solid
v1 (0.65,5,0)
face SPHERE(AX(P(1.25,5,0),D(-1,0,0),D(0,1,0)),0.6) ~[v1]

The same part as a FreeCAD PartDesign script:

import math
import FreeCAD as App
import Part
import Sketcher
from FreeCAD import Vector

doc = App.newDocument("Part")
body = doc.addObject("PartDesign::Body", "Body")

sketch1 = body.newObject("Sketcher::SketchObject", "Sketch")
sketch1.AttachmentSupport = (doc.getObject("XY_Plane"), [""])
sketch1.MapMode = "FlatFace"
sketch1.addGeometry([
    Part.LineSegment(Vector(0.7, 5, 0), Vector(1.9, 5, 0)),
    Part.ArcOfCircle(Part.Circle(Vector(1.2, 5, 0), Vector(0, 0, 1), 0.6), math.radians(0), math.radians(180)),
], False)
sketch1.addGeometry(Part.LineSegment(Vector(0.7, 5, 0), Vector(1.9, 5, 0)), True)
sketch1.addConstraint([
    Sketcher.Constraint("Coincident", 0, 1, 1, 2),
    Sketcher.Constraint("Coincident", 1, 1, 0, 2),
    Sketcher.Constraint("Horizontal", 0),
    Sketcher.Constraint("Horizontal", 2),
    Sketcher.Constraint("Coincident", 2, 1, 0, 1),
    Sketcher.Constraint("Horizontal", 1, 3, 0, 1),
    Sketcher.Constraint("Equal", 0, 2),
    Sketcher.Constraint("Radius", 1, 0.6),
    Sketcher.Constraint("DistanceY", -1, 1, 1, 3, 5.0),
    Sketcher.Constraint("DistanceX", -1, 1, 1, 3, 1.25),
])
revolution = body.newObject("PartDesign::Revolution", "Revolution")
revolution.Profile = sketch1
revolution.ReferenceAxis = (sketch1, ["Axis0"])
revolution.Angle = 360

doc.recompute()
